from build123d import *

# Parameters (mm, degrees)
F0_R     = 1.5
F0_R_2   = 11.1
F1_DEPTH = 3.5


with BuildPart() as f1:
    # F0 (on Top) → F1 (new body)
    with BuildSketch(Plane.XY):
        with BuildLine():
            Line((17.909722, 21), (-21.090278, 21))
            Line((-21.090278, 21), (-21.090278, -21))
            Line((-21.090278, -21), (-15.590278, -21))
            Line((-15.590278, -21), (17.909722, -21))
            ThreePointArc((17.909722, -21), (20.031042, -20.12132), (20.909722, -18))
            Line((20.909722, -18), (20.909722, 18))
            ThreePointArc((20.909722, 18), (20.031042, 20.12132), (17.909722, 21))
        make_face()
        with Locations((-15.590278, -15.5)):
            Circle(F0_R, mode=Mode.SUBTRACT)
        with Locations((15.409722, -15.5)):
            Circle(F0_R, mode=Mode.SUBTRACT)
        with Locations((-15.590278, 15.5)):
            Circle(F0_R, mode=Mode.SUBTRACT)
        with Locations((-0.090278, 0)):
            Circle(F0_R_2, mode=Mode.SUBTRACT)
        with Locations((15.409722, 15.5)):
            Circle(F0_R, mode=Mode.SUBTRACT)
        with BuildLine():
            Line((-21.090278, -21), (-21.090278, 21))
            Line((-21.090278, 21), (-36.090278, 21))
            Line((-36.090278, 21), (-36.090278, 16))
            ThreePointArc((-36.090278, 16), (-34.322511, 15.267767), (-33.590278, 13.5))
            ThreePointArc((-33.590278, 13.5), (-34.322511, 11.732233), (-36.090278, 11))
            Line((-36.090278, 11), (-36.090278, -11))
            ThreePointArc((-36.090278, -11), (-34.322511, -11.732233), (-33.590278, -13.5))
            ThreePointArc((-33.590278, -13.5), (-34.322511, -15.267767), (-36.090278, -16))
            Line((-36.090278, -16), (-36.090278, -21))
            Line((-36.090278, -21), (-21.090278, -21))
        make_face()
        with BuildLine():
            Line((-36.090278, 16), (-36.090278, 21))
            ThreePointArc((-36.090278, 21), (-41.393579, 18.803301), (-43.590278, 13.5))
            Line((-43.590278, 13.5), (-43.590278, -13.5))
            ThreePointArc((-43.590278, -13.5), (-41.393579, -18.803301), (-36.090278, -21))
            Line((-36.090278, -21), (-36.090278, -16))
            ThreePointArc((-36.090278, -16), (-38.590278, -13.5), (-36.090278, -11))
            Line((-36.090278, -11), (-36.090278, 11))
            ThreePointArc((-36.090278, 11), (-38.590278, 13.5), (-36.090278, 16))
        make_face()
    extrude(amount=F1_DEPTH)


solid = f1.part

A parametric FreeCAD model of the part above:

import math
import FreeCAD as App
import Part
import Sketcher

V = App.Vector
Q = App.Units.Quantity

doc = App.newDocument("Part")
body = doc.addObject("PartDesign::Body", "Body")

# Sketch on XY plane
sketch1 = body.newObject("Sketcher::SketchObject", "Sketch")
sketch1.AttachmentSupport = (doc.getObject("XY_Plane"), [""])
sketch1.MapMode = "FlatFace"
sketch1.addGeometry([
    Part.LineSegment(V(17.9, 21, 0), V(-36.1, 21, 0)),  # 0
    Part.ArcOfCircle(Part.Circle(V(-36.1, 13.5, 0), V(0, 0, 1), 7.5), math.radians(90), math.radians(180)),  # 1
    Part.LineSegment(V(-43.6, 13.5, 0), V(-43.6, -13.5, 0)),  # 2
    Part.ArcOfCircle(Part.Circle(V(-36.1, -13.5, 0), V(0, 0, 1), 7.5), math.radians(180), math.radians(270)),  # 3
    Part.LineSegment(V(-36.1, -21, 0), V(17.9, -21, 0)),  # 4
    Part.ArcOfCircle(Part.Circle(V(17.9, -18, 0), V(0, 0, 1), 3), math.radians(-90), math.radians(0)),  # 5
    Part.LineSegment(V(20.9, -18, 0), V(20.9, 18, 0)),  # 6
    Part.ArcOfCircle(Part.Circle(V(17.9, 18, 0), V(0, 0, 1), 3), math.radians(0), math.radians(90)),  # 7
    Part.ArcOfCircle(Part.Circle(V(-36.1, 13.5, 0), V(0, 0, 1), 2.5), math.radians(0), math.radians(90)),  # 8
    Part.ArcOfCircle(Part.Circle(V(-36.1, 13.5, 0), V(0, 0, 1), 2.5), math.radians(-90), math.radians(0)),  # 9
    Part.ArcOfCircle(Part.Circle(V(-36.1, 13.5, 0), V(0, 0, 1), 2.5), math.radians(90), math.radians(270)),  # 10
    Part.ArcOfCircle(Part.Circle(V(-36.1, -13.5, 0), V(0, 0, 1), 2.5), math.radians(0), math.radians(90)),  # 11
    Part.ArcOfCircle(Part.Circle(V(-36.1, -13.5, 0), V(0, 0, 1), 2.5), math.radians(-90), math.radians(0)),  # 12
    Part.ArcOfCircle(Part.Circle(V(-36.1, -13.5, 0), V(0, 0, 1), 2.5), math.radians(90), math.radians(270)),  # 13
    Part.Circle(V(-15.6, -15.5, 0), V(0, 0, 1), 1.5),  # 14
    Part.Circle(V(15.4, -15.5, 0), V(0, 0, 1), 1.5),  # 15
    Part.Circle(V(-15.6, 15.5, 0), V(0, 0, 1), 1.5),  # 16
    Part.Circle(V(-0.1, 0, 0), V(0, 0, 1), 11.1),  # 17
    Part.Circle(V(15.4, 15.5, 0), V(0, 0, 1), 1.5),  # 18
], False)
sketch1.addConstraint([
    Sketcher.Constraint("Tangent", 0, 2, 1, 1),
    Sketcher.Constraint("Tangent", 1, 2, 2, 1),
    Sketcher.Constraint("Tangent", 2, 2, 3, 1),
    Sketcher.Constraint("Tangent", 3, 2, 4, 1),
    Sketcher.Constraint("Tangent", 4, 2, 5, 1),
    Sketcher.Constraint("Tangent", 5, 2, 6, 1),
    Sketcher.Constraint("Tangent", 6, 2, 7, 1),
    Sketcher.Constraint("Tangent", 7, 2, 0, 1),
    Sketcher.Constraint("Tangent", 8, 1, 9, 2),
    Sketcher.Constraint("Tangent", 9, 1, 10, 2),
    Sketcher.Constraint("Tangent", 10, 1, 8, 2),
    Sketcher.Constraint("Tangent", 11, 1, 12, 2),
    Sketcher.Constraint("Tangent", 12, 1, 13, 2),
    Sketcher.Constraint("Tangent", 13, 1, 11, 2),
    Sketcher.Constraint("Horizontal", 0),
    Sketcher.Constraint("Vertical", 2),
    Sketcher.Constraint("Horizontal", 4),
    Sketcher.Constraint("Vertical", 6),
    Sketcher.Constraint("Coincident", 8, 3, 1, 3),
    Sketcher.Constraint("Coincident", 11, 3, 3, 3),
    Sketcher.Constraint("Equal", 1, 3),
    Sketcher.Constraint("Equal", 5, 7),
    Sketcher.Constraint("Equal", 10, 11),
    Sketcher.Constraint("Equal", 14, 15),
    Sketcher.Constraint("Equal", 15, 16),
    Sketcher.Constraint("Equal", 16, 18),
    Sketcher.Constraint("Symmetric", 14, 3, 16, 3, -1),
    Sketcher.Constraint("Symmetric", 15, 3, 18, 3, -1),
    Sketcher.Constraint("Symmetric", 10, 1, 12, 1, -1),
    Sketcher.Constraint("PointOnObject", 17, 3, -1),
    Sketcher.Constraint("Horizontal", 14, 3, 15, 3),
    Sketcher.Constraint("Horizontal", 1, 2, 8, 1),
    Sketcher.Constraint("Horizontal", 2, 2, 11, 1),
    Sketcher.Constraint("Vertical", 3, 2, 9, 1),
    Sketcher.Constraint("Vertical", 9, 1, 10, 1),
    Sketcher.Constraint("Vertical", 12, 1, 13, 1),
    Sketcher.Constraint("Diameter", 14, Q("3 mm")),
    Sketcher.Constraint("Radius", 5, Q("3.000001 mm")),
    Sketcher.Constraint("Diameter", 17, Q("22.2 mm")),
    Sketcher.Constraint("Radius", 1, Q("7.5 mm")),
    Sketcher.Constraint("Radius", 8, Q("2.5 mm")),
    Sketcher.Constraint("DistanceX", 0, 2, 0, 1, Q("54 mm")),
    Sketcher.Constraint("DistanceY", 2, 2, 2, 1, Q("27 mm")),
    Sketcher.Constraint("DistanceY", 14, 3, 12, 3, Q("2 mm")),
    Sketcher.Constraint("DistanceX", 14, 3, 15, 3, Q("31 mm")),
    Sketcher.Constraint("DistanceX", 17, 3, 5, 3, Q("17.999999 mm")),
    Sketcher.Constraint("DistanceX", 12, 3, 14, 3, Q("20.5 mm")),
    Sketcher.Constraint("DistanceX", 1, 3, -1, 1, Q("36.090278 mm")),
])
pad1 = body.newObject("PartDesign::Pad", "Pad")
pad1.Profile = sketch1
pad1.Length = 3.5

doc.recompute()
